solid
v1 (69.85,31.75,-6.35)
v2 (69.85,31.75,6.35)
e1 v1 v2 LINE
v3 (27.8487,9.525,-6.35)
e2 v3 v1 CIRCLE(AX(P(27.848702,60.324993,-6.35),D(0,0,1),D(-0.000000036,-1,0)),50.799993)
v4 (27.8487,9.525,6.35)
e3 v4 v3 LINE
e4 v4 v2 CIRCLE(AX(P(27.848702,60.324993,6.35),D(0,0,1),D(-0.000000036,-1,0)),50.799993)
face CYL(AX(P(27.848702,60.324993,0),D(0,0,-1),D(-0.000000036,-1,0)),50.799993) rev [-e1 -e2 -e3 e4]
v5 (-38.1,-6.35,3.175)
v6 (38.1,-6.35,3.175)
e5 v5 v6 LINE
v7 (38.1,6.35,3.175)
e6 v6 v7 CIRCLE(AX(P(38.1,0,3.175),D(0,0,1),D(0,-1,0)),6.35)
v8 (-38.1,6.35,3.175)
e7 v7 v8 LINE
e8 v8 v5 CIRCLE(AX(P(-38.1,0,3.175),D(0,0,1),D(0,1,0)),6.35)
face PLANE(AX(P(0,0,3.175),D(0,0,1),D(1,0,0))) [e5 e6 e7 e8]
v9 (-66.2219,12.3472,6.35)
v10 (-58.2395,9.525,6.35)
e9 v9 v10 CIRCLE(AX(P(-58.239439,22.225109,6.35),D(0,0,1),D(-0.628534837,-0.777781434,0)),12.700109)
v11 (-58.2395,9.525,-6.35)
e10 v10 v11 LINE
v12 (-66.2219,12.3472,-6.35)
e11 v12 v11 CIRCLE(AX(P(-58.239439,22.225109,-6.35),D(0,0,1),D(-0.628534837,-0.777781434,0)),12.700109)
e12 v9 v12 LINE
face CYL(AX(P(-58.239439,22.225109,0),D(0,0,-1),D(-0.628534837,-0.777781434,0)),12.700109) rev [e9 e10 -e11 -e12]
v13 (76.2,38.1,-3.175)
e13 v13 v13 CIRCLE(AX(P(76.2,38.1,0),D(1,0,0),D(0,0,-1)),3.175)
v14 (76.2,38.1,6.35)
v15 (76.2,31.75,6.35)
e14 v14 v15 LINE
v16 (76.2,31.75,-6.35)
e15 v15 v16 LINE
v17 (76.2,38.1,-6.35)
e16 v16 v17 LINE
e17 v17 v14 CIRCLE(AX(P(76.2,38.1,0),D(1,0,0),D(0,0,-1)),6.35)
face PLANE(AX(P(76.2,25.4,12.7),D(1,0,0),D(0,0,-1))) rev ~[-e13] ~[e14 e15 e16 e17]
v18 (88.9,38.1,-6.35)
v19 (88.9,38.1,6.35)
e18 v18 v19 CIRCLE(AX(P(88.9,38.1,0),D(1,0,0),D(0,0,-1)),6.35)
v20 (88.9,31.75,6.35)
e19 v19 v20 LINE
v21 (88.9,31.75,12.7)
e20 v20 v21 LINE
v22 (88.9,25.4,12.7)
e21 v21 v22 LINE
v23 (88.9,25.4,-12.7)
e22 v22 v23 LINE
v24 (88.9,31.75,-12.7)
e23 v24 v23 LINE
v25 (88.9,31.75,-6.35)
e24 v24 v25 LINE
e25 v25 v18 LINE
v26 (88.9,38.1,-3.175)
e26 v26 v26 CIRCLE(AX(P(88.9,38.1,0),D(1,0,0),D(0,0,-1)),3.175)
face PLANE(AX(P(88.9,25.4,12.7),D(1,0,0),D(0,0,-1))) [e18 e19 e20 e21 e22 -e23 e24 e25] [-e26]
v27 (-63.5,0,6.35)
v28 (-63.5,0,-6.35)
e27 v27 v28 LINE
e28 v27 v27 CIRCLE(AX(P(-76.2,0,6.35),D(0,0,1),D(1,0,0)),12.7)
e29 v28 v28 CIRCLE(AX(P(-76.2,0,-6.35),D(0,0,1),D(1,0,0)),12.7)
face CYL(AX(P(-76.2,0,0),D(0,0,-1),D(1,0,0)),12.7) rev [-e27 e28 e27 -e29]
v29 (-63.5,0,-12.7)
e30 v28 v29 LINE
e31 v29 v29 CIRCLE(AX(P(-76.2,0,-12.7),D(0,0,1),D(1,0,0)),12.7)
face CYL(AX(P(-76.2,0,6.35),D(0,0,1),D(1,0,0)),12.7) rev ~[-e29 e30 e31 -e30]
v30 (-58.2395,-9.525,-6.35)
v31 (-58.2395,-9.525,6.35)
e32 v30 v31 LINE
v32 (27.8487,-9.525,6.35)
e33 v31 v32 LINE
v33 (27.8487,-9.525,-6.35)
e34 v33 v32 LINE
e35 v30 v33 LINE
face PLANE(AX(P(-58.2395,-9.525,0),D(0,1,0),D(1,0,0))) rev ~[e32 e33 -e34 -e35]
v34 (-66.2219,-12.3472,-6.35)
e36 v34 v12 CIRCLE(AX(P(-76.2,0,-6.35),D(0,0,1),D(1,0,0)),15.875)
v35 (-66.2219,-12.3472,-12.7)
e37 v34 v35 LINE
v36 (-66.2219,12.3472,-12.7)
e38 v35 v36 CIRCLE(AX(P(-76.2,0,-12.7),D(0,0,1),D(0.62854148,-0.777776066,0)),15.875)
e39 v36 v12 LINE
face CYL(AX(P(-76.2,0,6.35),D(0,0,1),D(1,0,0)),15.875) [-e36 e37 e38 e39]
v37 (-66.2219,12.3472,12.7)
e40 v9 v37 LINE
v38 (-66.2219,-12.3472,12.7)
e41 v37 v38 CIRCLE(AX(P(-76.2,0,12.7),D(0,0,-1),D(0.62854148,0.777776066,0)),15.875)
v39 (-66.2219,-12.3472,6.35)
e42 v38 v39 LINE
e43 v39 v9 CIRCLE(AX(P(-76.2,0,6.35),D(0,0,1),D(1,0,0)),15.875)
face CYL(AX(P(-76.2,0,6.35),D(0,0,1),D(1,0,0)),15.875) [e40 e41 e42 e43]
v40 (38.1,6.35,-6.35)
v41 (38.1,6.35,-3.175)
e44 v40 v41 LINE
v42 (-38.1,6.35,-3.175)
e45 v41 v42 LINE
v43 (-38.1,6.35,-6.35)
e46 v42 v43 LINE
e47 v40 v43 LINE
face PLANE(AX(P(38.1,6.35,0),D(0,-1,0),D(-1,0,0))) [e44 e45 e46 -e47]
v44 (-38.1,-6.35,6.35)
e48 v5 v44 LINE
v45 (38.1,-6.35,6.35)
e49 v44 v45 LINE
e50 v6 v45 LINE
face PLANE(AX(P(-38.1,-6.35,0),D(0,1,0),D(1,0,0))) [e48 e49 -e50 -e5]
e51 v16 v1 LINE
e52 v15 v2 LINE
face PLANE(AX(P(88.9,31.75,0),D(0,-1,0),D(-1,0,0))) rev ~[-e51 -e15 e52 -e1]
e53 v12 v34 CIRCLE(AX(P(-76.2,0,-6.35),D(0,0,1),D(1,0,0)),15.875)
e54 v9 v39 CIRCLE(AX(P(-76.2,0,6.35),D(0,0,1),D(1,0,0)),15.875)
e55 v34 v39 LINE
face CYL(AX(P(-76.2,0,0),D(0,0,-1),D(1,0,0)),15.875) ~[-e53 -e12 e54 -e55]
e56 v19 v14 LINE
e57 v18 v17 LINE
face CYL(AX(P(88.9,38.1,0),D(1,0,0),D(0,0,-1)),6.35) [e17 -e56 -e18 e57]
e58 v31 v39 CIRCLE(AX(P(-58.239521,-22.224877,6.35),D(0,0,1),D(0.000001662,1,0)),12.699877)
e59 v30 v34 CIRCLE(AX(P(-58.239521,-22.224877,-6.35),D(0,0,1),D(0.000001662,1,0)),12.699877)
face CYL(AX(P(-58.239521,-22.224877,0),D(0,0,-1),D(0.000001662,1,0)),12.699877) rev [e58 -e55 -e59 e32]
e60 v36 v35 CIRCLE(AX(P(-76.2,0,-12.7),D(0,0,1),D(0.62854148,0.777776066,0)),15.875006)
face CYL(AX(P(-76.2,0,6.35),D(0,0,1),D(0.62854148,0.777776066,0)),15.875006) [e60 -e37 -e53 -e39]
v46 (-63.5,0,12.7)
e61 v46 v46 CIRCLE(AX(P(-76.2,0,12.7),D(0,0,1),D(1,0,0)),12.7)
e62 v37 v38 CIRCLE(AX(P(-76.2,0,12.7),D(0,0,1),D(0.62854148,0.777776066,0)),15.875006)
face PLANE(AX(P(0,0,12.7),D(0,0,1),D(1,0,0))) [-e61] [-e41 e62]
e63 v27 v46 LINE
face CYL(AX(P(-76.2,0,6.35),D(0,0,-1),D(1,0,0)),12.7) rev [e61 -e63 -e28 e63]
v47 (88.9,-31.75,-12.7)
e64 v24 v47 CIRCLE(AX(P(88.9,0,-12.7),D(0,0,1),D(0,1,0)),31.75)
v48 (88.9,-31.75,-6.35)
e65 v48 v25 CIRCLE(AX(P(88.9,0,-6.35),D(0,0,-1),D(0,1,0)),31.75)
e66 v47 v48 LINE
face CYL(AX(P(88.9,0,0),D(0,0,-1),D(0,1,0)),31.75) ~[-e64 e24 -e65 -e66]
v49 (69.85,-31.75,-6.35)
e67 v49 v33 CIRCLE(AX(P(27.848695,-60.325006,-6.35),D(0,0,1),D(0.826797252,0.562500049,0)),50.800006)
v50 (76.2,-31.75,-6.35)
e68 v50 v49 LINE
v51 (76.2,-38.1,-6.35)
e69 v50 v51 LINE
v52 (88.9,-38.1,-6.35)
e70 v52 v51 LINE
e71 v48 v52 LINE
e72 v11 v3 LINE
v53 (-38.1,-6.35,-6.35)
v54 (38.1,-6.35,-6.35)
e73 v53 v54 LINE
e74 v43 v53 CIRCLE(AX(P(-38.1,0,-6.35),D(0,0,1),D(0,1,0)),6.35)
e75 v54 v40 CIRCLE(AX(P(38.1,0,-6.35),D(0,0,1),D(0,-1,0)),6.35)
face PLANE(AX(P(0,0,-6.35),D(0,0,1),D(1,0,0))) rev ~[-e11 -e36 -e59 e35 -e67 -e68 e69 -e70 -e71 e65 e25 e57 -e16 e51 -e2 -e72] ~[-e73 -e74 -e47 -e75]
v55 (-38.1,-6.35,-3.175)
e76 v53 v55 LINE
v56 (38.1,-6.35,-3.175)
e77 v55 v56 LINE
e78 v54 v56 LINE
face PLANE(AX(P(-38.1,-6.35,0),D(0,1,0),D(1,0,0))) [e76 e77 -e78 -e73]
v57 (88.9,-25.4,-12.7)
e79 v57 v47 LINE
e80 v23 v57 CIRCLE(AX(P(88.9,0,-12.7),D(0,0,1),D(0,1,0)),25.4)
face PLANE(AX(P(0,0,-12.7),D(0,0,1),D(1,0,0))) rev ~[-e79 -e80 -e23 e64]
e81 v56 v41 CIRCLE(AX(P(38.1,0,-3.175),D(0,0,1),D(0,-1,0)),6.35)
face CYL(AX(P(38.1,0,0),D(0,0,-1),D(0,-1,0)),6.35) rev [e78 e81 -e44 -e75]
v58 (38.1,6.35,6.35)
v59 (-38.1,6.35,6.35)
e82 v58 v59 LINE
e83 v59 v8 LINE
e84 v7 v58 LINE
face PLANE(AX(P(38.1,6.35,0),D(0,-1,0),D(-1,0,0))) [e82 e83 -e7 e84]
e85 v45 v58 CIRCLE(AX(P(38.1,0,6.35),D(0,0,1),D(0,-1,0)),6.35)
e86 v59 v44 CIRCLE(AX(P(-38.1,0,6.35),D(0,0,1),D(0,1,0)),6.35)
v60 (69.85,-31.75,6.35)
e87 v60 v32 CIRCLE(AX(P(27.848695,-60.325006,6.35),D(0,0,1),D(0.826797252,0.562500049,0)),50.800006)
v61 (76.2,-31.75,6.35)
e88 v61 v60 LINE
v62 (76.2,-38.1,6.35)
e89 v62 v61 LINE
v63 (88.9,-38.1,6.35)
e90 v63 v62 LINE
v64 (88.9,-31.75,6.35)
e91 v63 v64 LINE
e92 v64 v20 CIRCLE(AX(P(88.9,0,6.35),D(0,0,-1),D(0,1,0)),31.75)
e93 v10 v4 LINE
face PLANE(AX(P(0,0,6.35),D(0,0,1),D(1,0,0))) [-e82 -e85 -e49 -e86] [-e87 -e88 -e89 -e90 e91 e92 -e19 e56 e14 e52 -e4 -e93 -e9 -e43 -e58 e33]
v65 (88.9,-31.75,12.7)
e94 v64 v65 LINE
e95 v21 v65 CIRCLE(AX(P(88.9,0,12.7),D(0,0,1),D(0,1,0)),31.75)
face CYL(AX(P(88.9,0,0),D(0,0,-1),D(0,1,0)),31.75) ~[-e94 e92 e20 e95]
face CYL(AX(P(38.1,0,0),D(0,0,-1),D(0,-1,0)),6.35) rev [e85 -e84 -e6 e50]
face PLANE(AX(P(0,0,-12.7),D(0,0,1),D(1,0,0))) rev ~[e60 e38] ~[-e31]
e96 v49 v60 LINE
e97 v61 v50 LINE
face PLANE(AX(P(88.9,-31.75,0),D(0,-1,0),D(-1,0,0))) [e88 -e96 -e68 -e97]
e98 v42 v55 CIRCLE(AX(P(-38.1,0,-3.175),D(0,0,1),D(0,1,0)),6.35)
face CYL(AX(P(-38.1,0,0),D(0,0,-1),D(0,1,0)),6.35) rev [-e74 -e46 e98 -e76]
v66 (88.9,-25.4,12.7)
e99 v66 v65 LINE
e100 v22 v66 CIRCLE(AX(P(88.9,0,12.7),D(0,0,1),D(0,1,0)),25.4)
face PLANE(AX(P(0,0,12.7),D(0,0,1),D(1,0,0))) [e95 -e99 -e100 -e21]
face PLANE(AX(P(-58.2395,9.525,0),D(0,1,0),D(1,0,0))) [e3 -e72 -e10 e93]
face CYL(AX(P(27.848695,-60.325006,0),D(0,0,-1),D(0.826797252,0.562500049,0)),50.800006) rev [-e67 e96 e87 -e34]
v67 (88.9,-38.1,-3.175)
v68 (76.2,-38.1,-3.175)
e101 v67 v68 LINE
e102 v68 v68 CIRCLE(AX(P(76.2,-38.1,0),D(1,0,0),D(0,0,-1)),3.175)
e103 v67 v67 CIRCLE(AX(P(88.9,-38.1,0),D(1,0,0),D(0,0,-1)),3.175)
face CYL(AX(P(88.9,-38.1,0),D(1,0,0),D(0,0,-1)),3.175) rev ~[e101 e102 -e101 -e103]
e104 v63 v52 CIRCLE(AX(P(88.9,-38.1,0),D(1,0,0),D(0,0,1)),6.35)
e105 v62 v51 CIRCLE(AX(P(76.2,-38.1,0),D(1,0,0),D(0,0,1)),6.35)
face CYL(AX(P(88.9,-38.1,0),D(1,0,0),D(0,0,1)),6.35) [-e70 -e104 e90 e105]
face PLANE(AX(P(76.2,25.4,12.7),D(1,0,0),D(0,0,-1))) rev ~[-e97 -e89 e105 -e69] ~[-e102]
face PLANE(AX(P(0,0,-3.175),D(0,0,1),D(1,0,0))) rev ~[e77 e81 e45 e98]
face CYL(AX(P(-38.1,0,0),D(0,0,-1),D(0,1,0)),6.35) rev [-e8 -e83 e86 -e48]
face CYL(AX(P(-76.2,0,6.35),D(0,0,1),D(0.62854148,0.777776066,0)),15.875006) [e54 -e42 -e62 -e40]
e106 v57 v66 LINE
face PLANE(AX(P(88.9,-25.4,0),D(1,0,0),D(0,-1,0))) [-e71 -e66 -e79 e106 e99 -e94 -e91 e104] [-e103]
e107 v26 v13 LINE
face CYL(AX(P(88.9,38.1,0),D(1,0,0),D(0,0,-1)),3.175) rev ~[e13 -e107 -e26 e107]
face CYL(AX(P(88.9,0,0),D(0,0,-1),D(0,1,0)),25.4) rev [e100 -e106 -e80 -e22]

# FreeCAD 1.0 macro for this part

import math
import FreeCAD as App
import Part
import Sketcher
Q = App.Units.Quantity

doc = App.newDocument("Part")
body = doc.addObject("PartDesign::Body", "Body")

sketch1 = body.newObject("Sketcher::SketchObject", "Sketch")
sketch1.AttachmentSupport = (doc.getObject("XY_Plane"), [""])
sketch1.MapMode = "FlatFace"
sketch1.addGeometry([
    Part.ArcOfCircle(Part.Circle(App.Vector(-76, 0, 0), App.Vector(0, 0, 1), 16), math.radians(51), math.radians(309)),
    Part.ArcOfCircle(Part.Circle(App.Vector(-58, -22, 0), App.Vector(0, 0, 1), 13), math.radians(90), math.radians(129)),
    Part.LineSegment(App.Vector(-58, -10, 0), App.Vector(28, -10, 0)),
    Part.ArcOfCircle(Part.Circle(App.Vector(28, -60, 0), App.Vector(0, 0, 1), 51), math.radians(34), math.radians(90)),
    Part.LineSegment(App.Vector(70, -32, 0), App.Vector(89, -32, 0)),
    Part.LineSegment(App.Vector(89, -32, 0), App.Vector(89, -25, 0)),
    Part.ArcOfCircle(Part.Circle(App.Vector(89, 0, 0), App.Vector(0, 0, 1), 25), math.radians(90), math.radians(270)),
    Part.LineSegment(App.Vector(89, 25, 0), App.Vector(89, 32, 0)),
    Part.LineSegment(App.Vector(89, 32, 0), App.Vector(70, 32, 0)),
    Part.ArcOfCircle(Part.Circle(App.Vector(28, 60, 0), App.Vector(0, 0, 1), 51), math.radians(-90), math.radians(-34)),
    Part.LineSegment(App.Vector(28, 10, 0), App.Vector(-58, 10, 0)),
    Part.ArcOfCircle(Part.Circle(App.Vector(-58, 22, 0), App.Vector(0, 0, 1), 13), math.radians(-129), math.radians(-90)),
    Part.Circle(App.Vector(-76, 0, 0), App.Vector(0, 0, 1), 13),
    Part.LineSegment(App.Vector(-38, 6, 0), App.Vector(38, 6, 0)),
    Part.ArcOfCircle(Part.Circle(App.Vector(38, 0, 0), App.Vector(0, 0, 1), 6), math.radians(-90), math.radians(90)),
    Part.LineSegment(App.Vector(38, -6, 0), App.Vector(-38, -6, 0)),
    Part.ArcOfCircle(Part.Circle(App.Vector(-38, 0, 0), App.Vector(0, 0, 1), 6), math.radians(90), math.radians(270)),
], False)
sketch1.addConstraint([
    Sketcher.Constraint("Tangent", 0, 2, 1, 2),
    Sketcher.Constraint("Tangent", 1, 1, 2, 1),
    Sketcher.Constraint("Tangent", 2, 2, 3, 2),
    Sketcher.Constraint("Coincident", 3, 1, 4, 1),
    Sketcher.Constraint("Coincident", 4, 2, 5, 1),
    Sketcher.Constraint("Coincident", 5, 2, 6, 2),
    Sketcher.Constraint("Coincident", 6, 1, 7, 1),
    Sketcher.Constraint("Coincident", 7, 2, 8, 1),
    Sketcher.Constraint("Coincident", 8, 2, 9, 2),
    Sketcher.Constraint("Tangent", 9, 1, 10, 1),
    Sketcher.Constraint("Tangent", 10, 2, 11, 2),
    Sketcher.Constraint("Tangent", 11, 1, 0, 1),
    Sketcher.Constraint("Tangent", 13, 2, 14, 2),
    Sketcher.Constraint("Tangent", 14, 1, 15, 1),
    Sketcher.Constraint("Tangent", 15, 2, 16, 2),
    Sketcher.Constraint("Tangent", 16, 1, 13, 1),
    Sketcher.Constraint("Horizontal", 2),
    Sketcher.Constraint("Horizontal", 4),
    Sketcher.Constraint("Vertical", 5),
    Sketcher.Constraint("Vertical", 7),
    Sketcher.Constraint("Horizontal", 8),
    Sketcher.Constraint("Horizontal", 10),
    Sketcher.Constraint("Horizontal", 13),
    Sketcher.Constraint("Horizontal", 15),
    Sketcher.Constraint("Coincident", 12, 3, 0, 3),
    Sketcher.Constraint("Equal", 3, 9),
    Sketcher.Constraint("Equal", 1, 11),
    Sketcher.Constraint("Equal", 11, 12),
    Sketcher.Constraint("Symmetric", 14, 3, 16, 3, -1, 1),
    Sketcher.Constraint("Symmetric", 3, 3, 9, 3, -1),
    Sketcher.Constraint("Symmetric", 5, 2, 6, 1, -1),
    Sketcher.Constraint("PointOnObject", 0, 3, -1),
    Sketcher.Constraint("Vertical", 6, 3, 4, 2),
    Sketcher.Constraint("Vertical", 3, 1, 8, 2),
    Sketcher.Constraint("Diameter", 12, Q("1 in")),
    Sketcher.Constraint("Radius", 3, Q("2 in")),
    Sketcher.Constraint("Radius", 6, Q("1 in")),
    Sketcher.Constraint("DistanceX", 13, 1, 13, 2, Q("3 in")),
    Sketcher.Constraint("Radius", 14, Q("0.25 in")),
    Sketcher.Constraint("DistanceX", 0, 3, -1, 1, Q("3 in")),
    Sketcher.Constraint("Radius", 0, Q("0.625 in")),
    Sketcher.Constraint("DistanceX", 14, 3, 6, 3, Q("2 in")),
    Sketcher.Constraint("DistanceY", 13, 2, 8, 2, Q("1 in")),
    Sketcher.Constraint("DistanceX", 4, 1, 4, 2, Q("0.75 in")),
    Sketcher.Constraint("DistanceY", 2, 2, 9, 1, Q("0.75 in")),
])
pad1 = body.newObject("PartDesign::Pad", "Pad")
pad1.Profile = sketch1
pad1.Length = Q("0.5 in")
pad1.Midplane = True

sketch2 = body.newObject("Sketcher::SketchObject", "Sketch001")
sketch2.AttachmentSupport = (doc.getObject("XY_Plane"), [""])
sketch2.MapMode = "FlatFace"
sketch2.addGeometry([
    Part.ArcOfCircle(Part.Circle(App.Vector(-38, 0, 0), App.Vector(0, 0, 1), 6), math.radians(90), math.radians(270)),
    Part.LineSegment(App.Vector(-38, -6, 0), App.Vector(38, -6, 0)),
    Part.ArcOfCircle(Part.Circle(App.Vector(38, 0, 0), App.Vector(0, 0, 1), 6), math.radians(-90), math.radians(90)),
    Part.LineSegment(App.Vector(38, 6, 0), App.Vector(-38, 6, 0)),
], False)
sketch2.addConstraint([
    Sketcher.Constraint("Tangent", 0, 2, 1, 1),
    Sketcher.Constraint("Tangent", 1, 2, 2, 1),
    Sketcher.Constraint("Tangent", 2, 2, 3, 1),
    Sketcher.Constraint("Tangent", 3, 2, 0, 1),
    Sketcher.Constraint("Horizontal", 1),
    Sketcher.Constraint("Horizontal", 3),
    Sketcher.Constraint("Symmetric", 0, 3, 2, 3, -1, 1),
    Sketcher.Constraint("DistanceX", 1, 1, 1, 2, Q("3 in")),
    Sketcher.Constraint("Radius", 0, Q("0.25 in")),
])
pad2 = body.newObject("PartDesign::Pad", "Pad001")
pad2.Profile = sketch2
pad2.Length = Q("0.25 in")
pad2.Midplane = True

sketch3 = body.newObject("Sketcher::SketchObject", "Sketch002")
sketch3.AttachmentSupport = (doc.getObject("XY_Plane"), [""])
sketch3.MapMode = "FlatFace"
sketch3.addGeometry([
    Part.LineSegment(App.Vector(89, 25, 0), App.Vector(89, 32, 0)),
    Part.ArcOfCircle(Part.Circle(App.Vector(89, 0, 0), App.Vector(0, 0, 1), 32), math.radians(90), math.radians(270)),
    Part.LineSegment(App.Vector(89, -32, 0), App.Vector(89, -25, 0)),
    Part.ArcOfCircle(Part.Circle(App.Vector(89, 0, 0), App.Vector(0, 0, 1), 25), math.radians(90), math.radians(270)),
], False)
sketch3.addConstraint([
    Sketcher.Constraint("Coincident", 0, 2, 1, 1),
    Sketcher.Constraint("Coincident", 1, 2, 2, 1),
    Sketcher.Constraint("Coincident", 2, 2, 3, 2),
    Sketcher.Constraint("Coincident", 3, 1, 0, 1),
    Sketcher.Constraint("Vertical", 0),
    Sketcher.Constraint("Vertical", 2),
    Sketcher.Constraint("Coincident", 3, 3, 1, 3),
    Sketcher.Constraint("Symmetric", 0, 2, 1, 2, -1),
    Sketcher.Constraint("Vertical", 3, 3, 0, 2),
    Sketcher.Constraint("Radius", 3, Q("1 in")),
    Sketcher.Constraint("Radius", 1, Q("1.25 in")),
    Sketcher.Constraint("DistanceX", -1, 1, 1, 3, Q("3.5 in")),
])
pad3 = body.newObject("PartDesign::Pad", "Pad002")
pad3.Profile = sketch3
pad3.Length = Q("1 in")
pad3.Midplane = True

sketch4 = body.newObject("Sketcher::SketchObject", "Sketch003")
sketch4.AttachmentSupport = (doc.getObject("YZ_Plane"), [""])
sketch4.MapMode = "FlatFace"
sketch4.AttachmentOffset = App.Placement(App.Vector(0, 0, 3.5 * 25.4), App.Rotation())
sketch4.addGeometry([
    Part.LineSegment(App.Vector(38.1, 6.3, 0), App.Vector(31.8, 6.3, 0)),
    Part.LineSegment(App.Vector(31.8, 6.3, 0), App.Vector(31.8, -6.3, 0)),
    Part.LineSegment(App.Vector(31.8, -6.3, 0), App.Vector(38.1, -6.3, 0)),
    Part.ArcOfCircle(Part.Circle(App.Vector(38.1, 0, 0), App.Vector(0, 0, 1), 6.4), math.radians(-90), math.radians(90)),
    Part.Circle(App.Vector(38.1, 0, 0), App.Vector(0, 0, 1), 3.2),
    Part.LineSegment(App.Vector(-31.8, -6.3, 0), App.Vector(-31.8, 6.3, 0)),
    Part.LineSegment(App.Vector(-31.8, 6.3, 0), App.Vector(-38.1, 6.3, 0)),
    Part.ArcOfCircle(Part.Circle(App.Vector(-38.1, 0, 0), App.Vector(0, 0, 1), 6.3), math.radians(90), math.radians(270)),
    Part.LineSegment(App.Vector(-38.1, -6.3, 0), App.Vector(-31.8, -6.3, 0)),
    Part.Circle(App.Vector(-38.1, 0, 0), App.Vector(0, 0, 1), 3.2),
], False)
sketch4.addConstraint([
    Sketcher.Constraint("Coincident", 0, 2, 1, 1),
    Sketcher.Constraint("Coincident", 1, 2, 2, 1),
    Sketcher.Constraint("Tangent", 2, 2, 3, 1),
    Sketcher.Constraint("Tangent", 3, 2, 0, 1),
    Sketcher.Constraint("Coincident", 5, 2, 6, 1),
    Sketcher.Constraint("Tangent", 6, 2, 7, 1),
    Sketcher.Constraint("Tangent", 7, 2, 8, 1),
    Sketcher.Constraint("Coincident", 8, 2, 5, 1),
    Sketcher.Constraint("Horizontal", 0),
    Sketcher.Constraint("Vertical", 1),
    Sketcher.Constraint("Horizontal", 2),
    Sketcher.Constraint("Vertical", 5),
    Sketcher.Constraint("Horizontal", 6),
    Sketcher.Constraint("Horizontal", 8),
    Sketcher.Constraint("Coincident", 4, 3, 3, 3),
    Sketcher.Constraint("Coincident", 9, 3, 7, 3),
    Sketcher.Constraint("Equal", 3, 7),
    Sketcher.Constraint("Equal", 4, 9),
    Sketcher.Constraint("Symmetric", 3, 3, 7, 3, -1, 1),
    Sketcher.Constraint("Symmetric", 0, 2, 5, 2, -2),
    Sketcher.Constraint("Diameter", 4, Q("0.25 in")),
    Sketcher.Constraint("Radius", 3, Q("0.25 in")),
    Sketcher.Constraint("DistanceX", 7, 3, 3, 3, Q("3 in")),
    Sketcher.Constraint("DistanceX", 0, 2, 0, 1, Q("0.25 in")),
])
pad4 = body.newObject("PartDesign::Pad", "Pad003")
pad4.Profile = sketch4
pad4.Length = Q("0.5 in")
pad4.Reversed = True

sketch5 = body.newObject("Sketcher::SketchObject", "Sketch004")
sketch5.AttachmentSupport = (doc.getObject("XY_Plane"), [""])
sketch5.MapMode = "FlatFace"
sketch5.AttachmentOffset = App.Placement(App.Vector(0, 0, 0.25 * 25.4), App.Rotation())
sketch5.addGeometry([
    Part.Circle(App.Vector(-76, 0, 0), App.Vector(0, 0, 1), 16),
    Part.Circle(App.Vector(-76, 0, 0), App.Vector(0, 0, 1), 13),
], False)
sketch5.addConstraint([
    Sketcher.Constraint("Coincident", 1, 3, 0, 3),
    Sketcher.Constraint("PointOnObject", 0, 3, -1),
    Sketcher.Constraint("Diameter", 1, Q("1 in")),
    Sketcher.Constraint("Diameter", 0, Q("1.25 in")),
    Sketcher.Constraint("DistanceX", 0, 3, -1, 1, Q("3 in")),
])
pad5 = body.newObject("PartDesign::Pad", "Pad004")
pad5.Profile = sketch5
pad5.Type = "TwoLengths"
pad5.Length = Q("0.75 in")
pad5.Length2 = Q("0.25 in")
pad5.Reversed = True

doc.recompute()
